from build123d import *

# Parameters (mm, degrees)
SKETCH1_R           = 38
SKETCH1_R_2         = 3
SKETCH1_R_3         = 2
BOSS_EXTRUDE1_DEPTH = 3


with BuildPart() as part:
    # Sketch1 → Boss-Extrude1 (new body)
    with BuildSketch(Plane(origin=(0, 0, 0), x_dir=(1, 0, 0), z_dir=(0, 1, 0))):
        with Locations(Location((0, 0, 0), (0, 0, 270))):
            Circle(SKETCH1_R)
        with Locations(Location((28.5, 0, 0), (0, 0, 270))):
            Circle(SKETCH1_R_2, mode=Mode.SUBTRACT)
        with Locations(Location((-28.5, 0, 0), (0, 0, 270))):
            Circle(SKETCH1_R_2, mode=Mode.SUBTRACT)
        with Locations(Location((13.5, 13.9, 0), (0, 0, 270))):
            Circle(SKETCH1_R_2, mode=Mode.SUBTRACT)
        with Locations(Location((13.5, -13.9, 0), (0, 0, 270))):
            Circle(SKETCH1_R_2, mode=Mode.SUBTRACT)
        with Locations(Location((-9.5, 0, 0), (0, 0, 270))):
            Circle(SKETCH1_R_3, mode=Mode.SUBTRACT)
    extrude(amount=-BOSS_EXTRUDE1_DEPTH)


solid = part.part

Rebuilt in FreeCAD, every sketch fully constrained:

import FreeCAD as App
import Part
import Sketcher

V = App.Vector

doc = App.newDocument("Part")
body = doc.addObject("PartDesign::Body", "Body")

# Sketch on XZ plane
sketch1 = body.newObject("Sketcher::SketchObject", "Sketch")
sketch1.AttachmentSupport = (doc.getObject("XZ_Plane"), [""])
sketch1.MapMode = "FlatFace"
sketch1.addGeometry([
    Part.Circle(V(0, 0, 0), V(0, 0, 1), 38),  # 0
    Part.Circle(V(-28.5, 0, 0), V(0, 0, 1), 3),  # 1
    Part.Circle(V(-9.5, 0, 0), V(0, 0, 1), 2),  # 2
    Part.Circle(V(13.5, -13.9, 0), V(0, 0, 1), 3),  # 3
    Part.Circle(V(28.5, 0, 0), V(0, 0, 1), 3),  # 4
    Part.Circle(V(13.5, 13.9, 0), V(0, 0, 1), 3),  # 5
], False)
sketch1.addConstraint([
    Sketcher.Constraint("Coincident", 0, 3, -1, 1),
    Sketcher.Constraint("Equal", 1, 3),
    Sketcher.Constraint("Equal", 3, 4),
    Sketcher.Constraint("Equal", 4, 5),
    Sketcher.Constraint("Symmetric", 1, 3, 4, 3, -1, 1),
    Sketcher.Constraint("Symmetric", 3, 3, 5, 3, -1),
    Sketcher.Constraint("PointOnObject", 1, 3, -1),
    Sketcher.Constraint("PointOnObject", 2, 3, -1),
    Sketcher.Constraint("Diameter", 0, 76.0),
    Sketcher.Constraint("Diameter", 1, 6.0),
    Sketcher.Constraint("Diameter", 2, 4.0),
    Sketcher.Constraint("DistanceX", 1, 3, 2, 3, 19.0),
    Sketcher.Constraint("DistanceX", 2, 3, 3, 3, 23.0),
    Sketcher.Constraint("DistanceX", 3, 3, 4, 3, 15.0),
    Sketcher.Constraint("DistanceY", 3, 3, -1, 1, 13.9),
])
pad1 = body.newObject("PartDesign::Pad", "Pad")
pad1.Profile = sketch1
pad1.Length = 3

doc.recompute()
